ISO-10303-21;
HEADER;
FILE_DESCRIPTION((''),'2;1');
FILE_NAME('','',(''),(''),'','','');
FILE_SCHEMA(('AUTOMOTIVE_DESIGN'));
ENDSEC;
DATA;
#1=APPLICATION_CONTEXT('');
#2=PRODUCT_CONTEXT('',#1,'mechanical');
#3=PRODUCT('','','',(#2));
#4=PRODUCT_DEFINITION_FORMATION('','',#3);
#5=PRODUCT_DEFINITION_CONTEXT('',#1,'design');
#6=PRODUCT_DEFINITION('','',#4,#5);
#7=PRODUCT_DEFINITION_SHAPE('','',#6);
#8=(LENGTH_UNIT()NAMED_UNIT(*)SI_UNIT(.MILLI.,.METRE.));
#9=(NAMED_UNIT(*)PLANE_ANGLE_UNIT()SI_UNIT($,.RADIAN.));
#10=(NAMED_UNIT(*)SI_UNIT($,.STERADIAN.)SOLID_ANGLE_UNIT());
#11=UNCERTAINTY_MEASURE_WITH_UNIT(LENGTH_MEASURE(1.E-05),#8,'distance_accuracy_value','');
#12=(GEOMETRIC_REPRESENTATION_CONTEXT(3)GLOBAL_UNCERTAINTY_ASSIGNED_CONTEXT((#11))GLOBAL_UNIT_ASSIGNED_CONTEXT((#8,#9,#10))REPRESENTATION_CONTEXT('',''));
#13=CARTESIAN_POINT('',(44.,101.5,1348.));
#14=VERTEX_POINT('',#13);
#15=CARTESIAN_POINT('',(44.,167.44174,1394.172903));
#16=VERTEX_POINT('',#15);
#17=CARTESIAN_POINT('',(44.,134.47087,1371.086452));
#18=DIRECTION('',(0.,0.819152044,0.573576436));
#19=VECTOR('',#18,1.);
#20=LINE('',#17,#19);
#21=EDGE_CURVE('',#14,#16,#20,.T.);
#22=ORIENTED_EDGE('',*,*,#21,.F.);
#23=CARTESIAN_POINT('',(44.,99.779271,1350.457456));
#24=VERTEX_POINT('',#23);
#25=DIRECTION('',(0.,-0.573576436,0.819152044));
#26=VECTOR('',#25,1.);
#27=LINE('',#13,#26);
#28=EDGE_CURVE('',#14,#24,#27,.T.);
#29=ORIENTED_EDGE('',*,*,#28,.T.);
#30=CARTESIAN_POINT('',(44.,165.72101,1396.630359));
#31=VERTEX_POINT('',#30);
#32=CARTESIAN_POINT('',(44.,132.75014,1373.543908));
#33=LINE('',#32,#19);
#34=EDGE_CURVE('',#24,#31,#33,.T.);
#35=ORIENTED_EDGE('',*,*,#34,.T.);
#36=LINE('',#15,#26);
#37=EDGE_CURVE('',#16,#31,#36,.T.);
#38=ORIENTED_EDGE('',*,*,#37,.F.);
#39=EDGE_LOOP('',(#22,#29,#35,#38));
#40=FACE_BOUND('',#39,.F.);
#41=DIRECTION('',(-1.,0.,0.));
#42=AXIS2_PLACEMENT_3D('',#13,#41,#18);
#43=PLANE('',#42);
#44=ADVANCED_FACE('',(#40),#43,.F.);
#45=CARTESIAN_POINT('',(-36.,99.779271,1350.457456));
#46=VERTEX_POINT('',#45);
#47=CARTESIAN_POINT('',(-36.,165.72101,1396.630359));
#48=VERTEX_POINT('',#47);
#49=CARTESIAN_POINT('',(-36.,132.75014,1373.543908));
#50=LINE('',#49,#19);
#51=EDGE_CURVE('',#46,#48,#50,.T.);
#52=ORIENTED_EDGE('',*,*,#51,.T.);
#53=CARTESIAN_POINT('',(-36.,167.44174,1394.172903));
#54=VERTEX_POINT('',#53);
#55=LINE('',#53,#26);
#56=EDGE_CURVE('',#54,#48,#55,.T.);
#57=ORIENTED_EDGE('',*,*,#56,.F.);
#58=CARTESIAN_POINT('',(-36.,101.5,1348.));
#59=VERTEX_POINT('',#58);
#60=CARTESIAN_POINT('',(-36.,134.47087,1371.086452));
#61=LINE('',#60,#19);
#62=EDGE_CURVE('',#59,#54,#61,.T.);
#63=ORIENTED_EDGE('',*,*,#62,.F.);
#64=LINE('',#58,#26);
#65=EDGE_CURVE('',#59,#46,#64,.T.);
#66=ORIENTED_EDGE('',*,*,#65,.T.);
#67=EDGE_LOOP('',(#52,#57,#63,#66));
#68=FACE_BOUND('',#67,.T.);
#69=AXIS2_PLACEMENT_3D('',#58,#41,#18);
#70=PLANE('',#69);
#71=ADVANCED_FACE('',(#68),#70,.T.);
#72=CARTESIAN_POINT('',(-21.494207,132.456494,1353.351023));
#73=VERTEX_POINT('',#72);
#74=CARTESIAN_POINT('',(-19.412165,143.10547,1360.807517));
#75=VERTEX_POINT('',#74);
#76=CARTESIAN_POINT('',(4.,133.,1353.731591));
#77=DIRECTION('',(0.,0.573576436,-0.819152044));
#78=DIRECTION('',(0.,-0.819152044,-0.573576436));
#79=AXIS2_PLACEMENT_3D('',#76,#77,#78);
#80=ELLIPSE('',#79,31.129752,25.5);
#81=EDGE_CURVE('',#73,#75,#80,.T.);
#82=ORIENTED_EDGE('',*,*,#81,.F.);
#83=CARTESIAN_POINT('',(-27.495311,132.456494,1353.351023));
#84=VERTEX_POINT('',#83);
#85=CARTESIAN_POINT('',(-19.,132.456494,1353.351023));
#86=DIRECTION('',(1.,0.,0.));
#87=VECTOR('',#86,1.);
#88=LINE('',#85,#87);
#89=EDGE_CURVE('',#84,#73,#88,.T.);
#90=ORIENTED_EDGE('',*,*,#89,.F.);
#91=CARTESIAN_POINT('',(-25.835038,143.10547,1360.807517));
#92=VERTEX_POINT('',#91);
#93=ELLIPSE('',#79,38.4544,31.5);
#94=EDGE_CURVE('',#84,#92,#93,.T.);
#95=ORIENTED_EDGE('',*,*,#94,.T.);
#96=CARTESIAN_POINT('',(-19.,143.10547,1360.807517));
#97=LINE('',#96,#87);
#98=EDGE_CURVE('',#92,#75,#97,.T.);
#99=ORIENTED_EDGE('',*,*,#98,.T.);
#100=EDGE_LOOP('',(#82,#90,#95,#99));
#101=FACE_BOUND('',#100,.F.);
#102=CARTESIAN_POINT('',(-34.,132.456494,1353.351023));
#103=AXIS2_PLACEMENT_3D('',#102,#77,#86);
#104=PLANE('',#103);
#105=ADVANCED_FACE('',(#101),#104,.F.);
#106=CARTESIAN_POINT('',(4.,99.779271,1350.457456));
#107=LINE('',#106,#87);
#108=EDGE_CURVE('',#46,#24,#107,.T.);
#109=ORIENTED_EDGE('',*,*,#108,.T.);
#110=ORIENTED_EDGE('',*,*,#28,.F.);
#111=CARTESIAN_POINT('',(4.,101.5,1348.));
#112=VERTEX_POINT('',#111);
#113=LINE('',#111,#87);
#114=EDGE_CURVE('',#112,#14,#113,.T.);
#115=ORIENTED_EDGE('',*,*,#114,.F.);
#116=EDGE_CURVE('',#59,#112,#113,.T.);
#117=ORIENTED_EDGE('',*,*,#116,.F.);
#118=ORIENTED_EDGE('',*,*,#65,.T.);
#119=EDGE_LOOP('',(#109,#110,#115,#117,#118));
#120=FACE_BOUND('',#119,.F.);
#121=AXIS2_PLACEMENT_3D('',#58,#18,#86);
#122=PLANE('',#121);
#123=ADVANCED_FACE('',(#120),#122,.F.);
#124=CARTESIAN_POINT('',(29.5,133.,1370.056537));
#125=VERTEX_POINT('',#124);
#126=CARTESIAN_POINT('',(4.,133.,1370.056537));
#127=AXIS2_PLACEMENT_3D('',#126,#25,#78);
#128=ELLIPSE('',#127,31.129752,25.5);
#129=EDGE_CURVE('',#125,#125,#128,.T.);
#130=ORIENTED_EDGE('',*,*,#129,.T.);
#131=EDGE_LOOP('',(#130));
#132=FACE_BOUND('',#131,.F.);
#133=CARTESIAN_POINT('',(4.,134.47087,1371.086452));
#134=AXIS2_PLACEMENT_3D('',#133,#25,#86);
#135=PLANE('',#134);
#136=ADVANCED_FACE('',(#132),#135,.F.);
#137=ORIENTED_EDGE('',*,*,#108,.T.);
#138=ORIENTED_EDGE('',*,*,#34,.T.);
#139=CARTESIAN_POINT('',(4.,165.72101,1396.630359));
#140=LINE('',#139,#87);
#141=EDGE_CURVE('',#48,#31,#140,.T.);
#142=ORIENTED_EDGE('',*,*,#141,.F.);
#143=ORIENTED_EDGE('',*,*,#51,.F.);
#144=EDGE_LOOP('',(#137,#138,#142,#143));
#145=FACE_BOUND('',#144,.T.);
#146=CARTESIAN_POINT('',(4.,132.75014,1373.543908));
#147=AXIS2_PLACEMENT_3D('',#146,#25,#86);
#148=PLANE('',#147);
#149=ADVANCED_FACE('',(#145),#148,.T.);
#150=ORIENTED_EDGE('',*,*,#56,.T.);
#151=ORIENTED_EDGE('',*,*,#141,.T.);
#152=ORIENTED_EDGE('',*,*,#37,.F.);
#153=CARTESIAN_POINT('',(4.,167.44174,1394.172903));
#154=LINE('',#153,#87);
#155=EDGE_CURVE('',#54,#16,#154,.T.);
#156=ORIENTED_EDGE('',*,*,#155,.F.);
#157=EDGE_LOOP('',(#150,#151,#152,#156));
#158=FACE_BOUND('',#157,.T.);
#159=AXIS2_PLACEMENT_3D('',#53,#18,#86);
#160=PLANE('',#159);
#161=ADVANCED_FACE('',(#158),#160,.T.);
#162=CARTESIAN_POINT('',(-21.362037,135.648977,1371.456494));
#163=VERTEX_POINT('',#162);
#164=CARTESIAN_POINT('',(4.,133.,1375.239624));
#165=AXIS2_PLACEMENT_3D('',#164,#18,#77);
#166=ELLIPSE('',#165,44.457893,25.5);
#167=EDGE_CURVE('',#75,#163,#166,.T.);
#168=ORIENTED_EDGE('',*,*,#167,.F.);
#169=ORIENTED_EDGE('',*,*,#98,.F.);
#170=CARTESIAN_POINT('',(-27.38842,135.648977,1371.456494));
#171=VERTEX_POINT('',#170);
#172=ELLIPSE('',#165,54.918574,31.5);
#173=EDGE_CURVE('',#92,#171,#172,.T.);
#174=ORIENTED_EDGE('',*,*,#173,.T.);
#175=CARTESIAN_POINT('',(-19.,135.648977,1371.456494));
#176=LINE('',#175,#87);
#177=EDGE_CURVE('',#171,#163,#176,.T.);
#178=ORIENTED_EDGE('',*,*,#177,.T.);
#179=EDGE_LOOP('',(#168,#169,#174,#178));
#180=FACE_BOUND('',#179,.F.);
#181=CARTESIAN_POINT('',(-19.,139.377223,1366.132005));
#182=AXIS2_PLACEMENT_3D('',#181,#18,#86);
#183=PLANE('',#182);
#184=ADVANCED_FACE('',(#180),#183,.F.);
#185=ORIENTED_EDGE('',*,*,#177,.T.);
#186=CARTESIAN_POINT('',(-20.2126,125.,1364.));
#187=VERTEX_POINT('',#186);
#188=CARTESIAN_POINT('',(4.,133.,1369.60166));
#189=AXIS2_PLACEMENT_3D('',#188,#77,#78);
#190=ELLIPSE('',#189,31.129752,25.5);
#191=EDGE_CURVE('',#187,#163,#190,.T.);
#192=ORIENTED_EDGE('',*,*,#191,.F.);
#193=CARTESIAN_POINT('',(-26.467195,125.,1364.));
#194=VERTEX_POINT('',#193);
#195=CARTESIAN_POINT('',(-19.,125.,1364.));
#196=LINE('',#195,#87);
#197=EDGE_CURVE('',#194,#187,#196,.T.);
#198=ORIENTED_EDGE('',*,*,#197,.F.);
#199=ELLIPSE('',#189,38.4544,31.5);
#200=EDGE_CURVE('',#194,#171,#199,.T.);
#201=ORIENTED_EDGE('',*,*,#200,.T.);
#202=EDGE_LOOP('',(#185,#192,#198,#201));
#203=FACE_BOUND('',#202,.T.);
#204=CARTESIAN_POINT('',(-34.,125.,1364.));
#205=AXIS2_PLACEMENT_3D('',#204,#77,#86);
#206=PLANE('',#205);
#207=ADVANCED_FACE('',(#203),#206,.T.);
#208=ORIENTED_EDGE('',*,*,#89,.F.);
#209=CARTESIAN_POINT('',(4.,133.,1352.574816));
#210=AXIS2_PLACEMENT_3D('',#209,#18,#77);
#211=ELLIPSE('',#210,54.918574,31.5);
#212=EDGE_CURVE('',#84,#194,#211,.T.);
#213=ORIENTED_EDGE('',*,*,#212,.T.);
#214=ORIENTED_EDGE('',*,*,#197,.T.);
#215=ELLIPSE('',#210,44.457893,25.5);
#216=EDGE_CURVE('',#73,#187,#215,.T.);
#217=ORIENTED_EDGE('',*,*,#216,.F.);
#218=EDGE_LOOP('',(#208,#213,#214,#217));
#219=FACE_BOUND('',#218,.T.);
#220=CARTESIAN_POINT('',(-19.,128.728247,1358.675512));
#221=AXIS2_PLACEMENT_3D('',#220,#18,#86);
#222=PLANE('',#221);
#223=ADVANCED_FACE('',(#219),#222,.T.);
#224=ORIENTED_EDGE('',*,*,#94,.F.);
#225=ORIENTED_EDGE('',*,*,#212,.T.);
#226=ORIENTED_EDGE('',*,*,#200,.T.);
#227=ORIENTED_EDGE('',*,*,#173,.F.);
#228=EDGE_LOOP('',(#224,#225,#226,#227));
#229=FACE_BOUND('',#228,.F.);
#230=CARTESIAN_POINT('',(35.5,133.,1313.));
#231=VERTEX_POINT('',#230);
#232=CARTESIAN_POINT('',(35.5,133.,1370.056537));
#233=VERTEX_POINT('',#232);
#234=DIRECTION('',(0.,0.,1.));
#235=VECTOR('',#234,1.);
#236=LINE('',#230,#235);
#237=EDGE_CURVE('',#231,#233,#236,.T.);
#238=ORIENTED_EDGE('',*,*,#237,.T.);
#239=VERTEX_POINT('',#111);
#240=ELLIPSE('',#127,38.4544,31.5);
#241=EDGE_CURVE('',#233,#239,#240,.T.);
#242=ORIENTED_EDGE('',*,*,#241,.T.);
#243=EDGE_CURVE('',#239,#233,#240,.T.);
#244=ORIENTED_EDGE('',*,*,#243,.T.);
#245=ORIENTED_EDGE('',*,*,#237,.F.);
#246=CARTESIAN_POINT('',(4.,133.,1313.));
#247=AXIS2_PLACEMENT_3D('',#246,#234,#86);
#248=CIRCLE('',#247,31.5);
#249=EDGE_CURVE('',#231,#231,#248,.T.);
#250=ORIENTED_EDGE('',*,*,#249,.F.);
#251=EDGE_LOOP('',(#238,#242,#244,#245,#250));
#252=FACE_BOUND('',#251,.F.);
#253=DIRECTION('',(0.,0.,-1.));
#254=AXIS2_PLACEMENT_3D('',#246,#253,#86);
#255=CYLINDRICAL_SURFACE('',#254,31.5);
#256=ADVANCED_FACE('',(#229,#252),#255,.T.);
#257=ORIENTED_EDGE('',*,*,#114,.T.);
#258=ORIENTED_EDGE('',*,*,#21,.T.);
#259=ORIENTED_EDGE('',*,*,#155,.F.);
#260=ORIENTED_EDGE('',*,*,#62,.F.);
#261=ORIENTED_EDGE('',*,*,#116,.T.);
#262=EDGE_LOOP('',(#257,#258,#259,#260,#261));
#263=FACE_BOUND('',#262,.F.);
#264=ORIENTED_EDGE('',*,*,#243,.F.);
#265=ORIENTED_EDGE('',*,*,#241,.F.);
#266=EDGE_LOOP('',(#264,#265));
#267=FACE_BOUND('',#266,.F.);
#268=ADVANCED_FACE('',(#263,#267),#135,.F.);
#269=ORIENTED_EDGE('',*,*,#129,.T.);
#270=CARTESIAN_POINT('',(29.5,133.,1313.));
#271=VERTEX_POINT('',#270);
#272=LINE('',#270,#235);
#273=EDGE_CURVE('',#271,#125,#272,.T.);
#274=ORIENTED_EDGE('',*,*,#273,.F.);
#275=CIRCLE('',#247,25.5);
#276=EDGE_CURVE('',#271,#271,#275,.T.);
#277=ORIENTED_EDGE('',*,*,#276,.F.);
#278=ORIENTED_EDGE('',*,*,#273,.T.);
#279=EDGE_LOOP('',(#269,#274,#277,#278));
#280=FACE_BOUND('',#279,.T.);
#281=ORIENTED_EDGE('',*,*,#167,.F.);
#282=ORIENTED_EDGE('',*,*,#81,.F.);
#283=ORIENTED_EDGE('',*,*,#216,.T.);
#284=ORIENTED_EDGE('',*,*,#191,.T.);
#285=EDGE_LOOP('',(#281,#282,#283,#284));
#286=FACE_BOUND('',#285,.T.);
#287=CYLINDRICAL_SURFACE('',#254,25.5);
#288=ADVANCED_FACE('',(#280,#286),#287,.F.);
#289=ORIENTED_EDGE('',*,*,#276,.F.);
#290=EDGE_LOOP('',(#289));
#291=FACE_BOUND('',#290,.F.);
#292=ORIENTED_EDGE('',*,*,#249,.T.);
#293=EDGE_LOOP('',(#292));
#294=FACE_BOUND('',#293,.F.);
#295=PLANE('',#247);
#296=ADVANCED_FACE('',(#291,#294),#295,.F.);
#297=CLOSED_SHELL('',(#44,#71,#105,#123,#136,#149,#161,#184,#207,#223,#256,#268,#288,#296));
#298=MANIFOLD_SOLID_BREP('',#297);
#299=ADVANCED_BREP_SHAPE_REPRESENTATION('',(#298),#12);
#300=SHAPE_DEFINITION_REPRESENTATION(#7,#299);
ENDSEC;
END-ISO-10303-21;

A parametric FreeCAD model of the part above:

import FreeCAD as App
import Part
import Sketcher
from FreeCAD import Vector
Q = App.Units.Quantity

doc = App.newDocument("Part")
params = doc.addObject("Spreadsheet::Sheet", "Params")
for row, (alias, value) in enumerate([
    ("sketch1_width", "30 mm"),
    ("sketch1_height", "13 mm"),
    ("pad1_length", "13 mm"),
    ("sketch2_width", "90 mm"),
    ("sketch2_height", "40 mm"),
    ("pad2_length", "90 mm"),
    ("sketch3_diameter", "51 mm"),
    ("pad3_length", "80 mm"),
    ("sketch4_diameter", "63 mm"),
    ("pad4_length", "80 mm"),
    ("sketch5_width", "80 mm"),
    ("sketch5_height", "80.5 mm"),
    ("pad5_length", "3 mm"),
], start=1):
    params.set(f"A{row}", alias)
    params.set(f"B{row}", "=" + value)
    params.setAlias(f"B{row}", alias)

body = doc.addObject("PartDesign::Body", "Body")

# Sketch on XY plane
sketch1 = body.newObject("Sketcher::SketchObject", "Sketch")
sketch1.AttachmentSupport = (doc.getObject("XY_Plane"), [""])
sketch1.MapMode = "FlatFace"
sketch1.addGeometry([
    Part.LineSegment(Vector(0, 13, 0), Vector(0, 0, 0)),
    Part.LineSegment(Vector(0, 0, 0), Vector(30, 0, 0)),
    Part.LineSegment(Vector(30, 0, 0), Vector(30, 13, 0)),
    Part.LineSegment(Vector(30, 13, 0), Vector(0, 13, 0)),
], False)
sketch1.addConstraint([
    Sketcher.Constraint("Coincident", 0, 2, 1, 1),
    Sketcher.Constraint("Coincident", 1, 2, 2, 1),
    Sketcher.Constraint("Coincident", 2, 2, 3, 1),
    Sketcher.Constraint("Coincident", 3, 2, 0, 1),
    Sketcher.Constraint("Vertical", 0),
    Sketcher.Constraint("Horizontal", 1),
    Sketcher.Constraint("Vertical", 2),
    Sketcher.Constraint("Horizontal", 3),
    Sketcher.Constraint("Coincident", 0, 2, -1, 1),
    Sketcher.Constraint("DistanceX", 1, 1, 1, 2, Q("30 mm")),
    Sketcher.Constraint("DistanceY", 0, 2, 0, 1, Q("13 mm")),
])
sketch1.setExpression("Constraints[9]", "Params.sketch1_width")
sketch1.setExpression("Constraints[10]", "Params.sketch1_height")
pad1 = body.newObject("PartDesign::Pad", "Pad")
pad1.Profile = sketch1
pad1.setExpression("Length", "Params.pad1_length")
body2 = doc.addObject("PartDesign::Body", "Body001")
doc.recompute()

body.Placement = App.Placement(Vector(3, 51, 16), App.Rotation(Vector(-1, 0, 0), 55))
boolean = body2.newObject("PartDesign::Boolean", "Boolean")
boolean.Type = "Fuse"
boolean.addObjects([body])
body3 = doc.addObject("PartDesign::Body", "Body002")

# Sketch on XY plane
sketch2 = body3.newObject("Sketcher::SketchObject", "Sketch001")
sketch2.AttachmentSupport = (doc.getObject("XY_Plane002"), [""])
sketch2.MapMode = "FlatFace"
sketch2.addGeometry([
    Part.LineSegment(Vector(0, 40, 0), Vector(0, 0, 0)),
    Part.LineSegment(Vector(0, 0, 0), Vector(90, 0, 0)),
    Part.LineSegment(Vector(90, 0, 0), Vector(90, 40, 0)),
    Part.LineSegment(Vector(90, 40, 0), Vector(0, 40, 0)),
], False)
sketch2.addConstraint([
    Sketcher.Constraint("Coincident", 0, 2, 1, 1),
    Sketcher.Constraint("Coincident", 1, 2, 2, 1),
    Sketcher.Constraint("Coincident", 2, 2, 3, 1),
    Sketcher.Constraint("Coincident", 3, 2, 0, 1),
    Sketcher.Constraint("Vertical", 0),
    Sketcher.Constraint("Horizontal", 1),
    Sketcher.Constraint("Vertical", 2),
    Sketcher.Constraint("Horizontal", 3),
    Sketcher.Constraint("Coincident", 0, 2, -1, 1),
    Sketcher.Constraint("DistanceX", 1, 1, 1, 2, Q("90 mm")),
    Sketcher.Constraint("DistanceY", 0, 2, 0, 1, Q("40 mm")),
])
sketch2.setExpression("Constraints[9]", "Params.sketch2_width")
sketch2.setExpression("Constraints[10]", "Params.sketch2_height")
pad2 = body3.newObject("PartDesign::Pad", "Pad001")
pad2.Profile = sketch2
pad2.setExpression("Length", "Params.pad2_length")
body4 = doc.addObject("PartDesign::Body", "Body003")
doc.recompute()

body3.Placement = App.Placement(Vector(0, -12, 68), App.Rotation(Vector(-1, 0, 0), 55))
boolean2 = body4.newObject("PartDesign::Boolean", "Boolean001")
boolean2.Type = "Fuse"
boolean2.addObjects([body3])
body5 = doc.addObject("PartDesign::Body", "Body004")

# Sketch on XY plane
sketch3 = body5.newObject("Sketcher::SketchObject", "Sketch002")
sketch3.AttachmentSupport = (doc.getObject("XY_Plane004"), [""])
sketch3.MapMode = "FlatFace"
sketch3.addGeometry(Part.Circle(Vector(41, 43, 0), Vector(0, 0, 1), 25.5), False)
sketch3.addConstraint([
    Sketcher.Constraint("Diameter", 0, Q("51 mm")),
    Sketcher.Constraint("DistanceX", -1, 1, 0, 3, Q("41 mm")),
    Sketcher.Constraint("DistanceY", -1, 1, 0, 3, Q("43 mm")),
])
sketch3.setExpression("Constraints[0]", "Params.sketch3_diameter")
pad3 = body5.newObject("PartDesign::Pad", "Pad002")
pad3.Profile = sketch3
pad3.setExpression("Length", "Params.pad3_length")
body6 = doc.addObject("PartDesign::Body", "Body005")

# Sketch on XY plane
sketch4 = body6.newObject("Sketcher::SketchObject", "Sketch003")
sketch4.AttachmentSupport = (doc.getObject("XY_Plane005"), [""])
sketch4.MapMode = "FlatFace"
sketch4.addGeometry(Part.Circle(Vector(41, 43, 0), Vector(0, 0, 1), 31.5), False)
sketch4.addConstraint([
    Sketcher.Constraint("Diameter", 0, Q("63 mm")),
    Sketcher.Constraint("DistanceX", -1, 1, 0, 3, Q("41 mm")),
    Sketcher.Constraint("DistanceY", -1, 1, 0, 3, Q("43 mm")),
])
sketch4.setExpression("Constraints[0]", "Params.sketch4_diameter")
pad4 = body6.newObject("PartDesign::Pad", "Pad003")
pad4.Profile = sketch4
pad4.setExpression("Length", "Params.pad4_length")
doc.recompute()

boolean3 = body6.newObject("PartDesign::Boolean", "Boolean002")
boolean3.Type = "Cut"
boolean3.addObjects([body5])
doc.recompute()

boolean4 = body6.newObject("PartDesign::Boolean", "Boolean003")
boolean4.Type = "Cut"
boolean4.addObjects([body4])
body7 = doc.addObject("PartDesign::Body", "Body006")
doc.recompute()

body6.Placement = App.Placement(Vector(0, 16, -35), App.Rotation(Vector(0, 0, 1), 0))
boolean5 = body7.newObject("PartDesign::Boolean", "Boolean004")
boolean5.Type = "Fuse"
boolean5.addObjects([body6])
body8 = doc.addObject("PartDesign::Body", "Body007")

# Sketch on XY plane
sketch5 = body8.newObject("Sketcher::SketchObject", "Sketch004")
sketch5.AttachmentSupport = (doc.getObject("XY_Plane007"), [""])
sketch5.MapMode = "FlatFace"
sketch5.addGeometry([
    Part.LineSegment(Vector(0, 80.5, 0), Vector(0, 0, 0)),
    Part.LineSegment(Vector(0, 0, 0), Vector(80, 0, 0)),
    Part.LineSegment(Vector(80, 0, 0), Vector(80, 80.5, 0)),
    Part.LineSegment(Vector(80, 80.5, 0), Vector(0, 80.5, 0)),
], False)
sketch5.addConstraint([
    Sketcher.Constraint("Coincident", 0, 2, 1, 1),
    Sketcher.Constraint("Coincident", 1, 2, 2, 1),
    Sketcher.Constraint("Coincident", 2, 2, 3, 1),
    Sketcher.Constraint("Coincident", 3, 2, 0, 1),
    Sketcher.Constraint("Vertical", 0),
    Sketcher.Constraint("Horizontal", 1),
    Sketcher.Constraint("Vertical", 2),
    Sketcher.Constraint("Horizontal", 3),
    Sketcher.Constraint("Coincident", 0, 2, -1, 1),
    Sketcher.Constraint("DistanceX", 1, 1, 1, 2, Q("80 mm")),
    Sketcher.Constraint("DistanceY", 0, 2, 0, 1, Q("80.5 mm")),
])
sketch5.setExpression("Constraints[9]", "Params.sketch5_width")
sketch5.setExpression("Constraints[10]", "Params.sketch5_height")
pad5 = body8.newObject("PartDesign::Pad", "Pad004")
pad5.Profile = sketch5
pad5.setExpression("Length", "Params.pad5_length")
body9 = doc.addObject("PartDesign::Body", "Body008")
doc.recompute()

body8.Placement = App.Placement(Vector(0, 0, 0), App.Rotation(Vector(1, 0, 0), 35))
boolean6 = body9.newObject("PartDesign::Boolean", "Boolean005")
boolean6.Type = "Fuse"
boolean6.addObjects([body8])
body10 = doc.addObject("PartDesign::Body", "Body009")
doc.recompute()

body9.Placement = App.Placement(Vector(1, 27.5, 0), App.Rotation(Vector(0, 0, 1), 0))
boolean7 = body10.newObject("PartDesign::Boolean", "Boolean006")
boolean7.Type = "Fuse"
boolean7.addObjects([body9])
doc.recompute()

boolean8 = body10.newObject("PartDesign::Boolean", "Boolean007")
boolean8.Type = "Fuse"
boolean8.addObjects([body7])
doc.recompute()

boolean9 = body10.newObject("PartDesign::Boolean", "Boolean008")
boolean9.Type = "Cut"
boolean9.addObjects([body2])
body11 = doc.addObject("PartDesign::Body", "Body010")
doc.recompute()

body10.Placement = App.Placement(Vector(-37, 74, 1348), App.Rotation(Vector(0, 0, 1), 0))
boolean10 = body11.newObject("PartDesign::Boolean", "Boolean009")
boolean10.Type = "Fuse"
boolean10.addObjects([body10])

doc.recompute()
